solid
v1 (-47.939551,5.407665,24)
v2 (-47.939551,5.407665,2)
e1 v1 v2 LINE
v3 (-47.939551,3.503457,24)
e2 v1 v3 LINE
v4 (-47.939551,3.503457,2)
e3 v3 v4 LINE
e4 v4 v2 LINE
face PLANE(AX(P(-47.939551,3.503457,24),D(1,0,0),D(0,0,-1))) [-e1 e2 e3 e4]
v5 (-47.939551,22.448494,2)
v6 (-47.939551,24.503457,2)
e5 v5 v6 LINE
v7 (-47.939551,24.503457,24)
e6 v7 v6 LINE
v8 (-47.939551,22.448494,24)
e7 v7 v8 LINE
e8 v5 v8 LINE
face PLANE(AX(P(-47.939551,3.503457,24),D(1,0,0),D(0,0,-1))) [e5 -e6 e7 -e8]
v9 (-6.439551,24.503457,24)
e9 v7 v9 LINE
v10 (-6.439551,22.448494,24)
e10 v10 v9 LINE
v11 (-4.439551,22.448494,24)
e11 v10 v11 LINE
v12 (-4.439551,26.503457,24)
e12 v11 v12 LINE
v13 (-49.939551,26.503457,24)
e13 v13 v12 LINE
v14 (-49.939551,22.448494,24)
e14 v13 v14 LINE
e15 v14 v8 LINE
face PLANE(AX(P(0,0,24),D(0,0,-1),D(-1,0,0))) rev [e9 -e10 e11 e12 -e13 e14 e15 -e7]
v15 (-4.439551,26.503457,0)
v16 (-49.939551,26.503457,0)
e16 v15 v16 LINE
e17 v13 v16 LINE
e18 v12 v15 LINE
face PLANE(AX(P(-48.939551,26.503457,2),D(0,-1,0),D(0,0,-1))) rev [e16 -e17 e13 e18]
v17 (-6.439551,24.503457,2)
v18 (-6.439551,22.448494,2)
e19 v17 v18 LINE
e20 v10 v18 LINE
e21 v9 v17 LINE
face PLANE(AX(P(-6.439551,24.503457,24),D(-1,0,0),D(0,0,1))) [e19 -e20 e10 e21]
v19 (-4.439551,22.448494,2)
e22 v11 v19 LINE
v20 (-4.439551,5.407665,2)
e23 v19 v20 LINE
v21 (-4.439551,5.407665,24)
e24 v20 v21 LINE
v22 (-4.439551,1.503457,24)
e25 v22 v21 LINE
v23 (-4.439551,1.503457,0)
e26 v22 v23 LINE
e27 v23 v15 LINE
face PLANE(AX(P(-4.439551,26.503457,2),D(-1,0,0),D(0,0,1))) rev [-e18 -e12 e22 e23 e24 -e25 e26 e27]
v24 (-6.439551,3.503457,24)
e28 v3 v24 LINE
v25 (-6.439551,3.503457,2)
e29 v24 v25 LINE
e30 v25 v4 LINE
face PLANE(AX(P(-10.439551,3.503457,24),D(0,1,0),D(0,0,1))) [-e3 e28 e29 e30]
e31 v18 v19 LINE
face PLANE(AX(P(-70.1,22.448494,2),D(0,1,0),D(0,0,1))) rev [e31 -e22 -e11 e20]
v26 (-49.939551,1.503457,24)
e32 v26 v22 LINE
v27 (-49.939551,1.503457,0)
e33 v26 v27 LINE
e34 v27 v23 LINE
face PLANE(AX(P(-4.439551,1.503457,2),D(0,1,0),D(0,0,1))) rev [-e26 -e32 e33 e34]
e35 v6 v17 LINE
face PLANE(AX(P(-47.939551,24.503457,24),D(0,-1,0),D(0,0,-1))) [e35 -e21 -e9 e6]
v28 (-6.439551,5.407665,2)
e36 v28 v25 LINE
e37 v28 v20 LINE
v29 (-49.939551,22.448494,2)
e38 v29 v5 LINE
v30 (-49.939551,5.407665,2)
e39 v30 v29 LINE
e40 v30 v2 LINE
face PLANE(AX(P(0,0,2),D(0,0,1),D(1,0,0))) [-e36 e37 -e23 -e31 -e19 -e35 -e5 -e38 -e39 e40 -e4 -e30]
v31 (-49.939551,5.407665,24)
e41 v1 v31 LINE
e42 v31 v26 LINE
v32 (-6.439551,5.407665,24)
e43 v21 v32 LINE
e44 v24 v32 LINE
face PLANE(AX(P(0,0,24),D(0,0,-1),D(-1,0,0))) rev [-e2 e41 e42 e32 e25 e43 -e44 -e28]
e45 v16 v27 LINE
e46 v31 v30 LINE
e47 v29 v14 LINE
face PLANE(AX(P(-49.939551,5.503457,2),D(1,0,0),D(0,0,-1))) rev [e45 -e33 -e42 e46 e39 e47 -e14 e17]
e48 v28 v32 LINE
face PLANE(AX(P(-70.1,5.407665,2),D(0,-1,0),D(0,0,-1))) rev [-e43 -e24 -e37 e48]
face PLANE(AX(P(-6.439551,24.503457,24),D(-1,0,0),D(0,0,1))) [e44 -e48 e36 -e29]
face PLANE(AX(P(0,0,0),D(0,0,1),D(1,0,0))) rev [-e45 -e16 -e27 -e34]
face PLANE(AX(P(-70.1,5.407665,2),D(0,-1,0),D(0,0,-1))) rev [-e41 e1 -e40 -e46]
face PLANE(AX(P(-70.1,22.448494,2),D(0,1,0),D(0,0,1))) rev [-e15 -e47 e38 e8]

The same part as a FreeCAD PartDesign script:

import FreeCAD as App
import Part
import Sketcher
Q = App.Units.Quantity

doc = App.newDocument("Part")
body = doc.addObject("PartDesign::Body", "Body")

# Sketch on XY plane
sketch1 = body.newObject("Sketcher::SketchObject", "Sketch")
sketch1.AttachmentSupport = (doc.getObject("XY_Plane"), [""])
sketch1.MapMode = "FlatFace"
sketch1.addGeometry([
    Part.LineSegment(App.Vector(-4, 27, 0), App.Vector(-50, 27, 0)),
    Part.LineSegment(App.Vector(-50, 27, 0), App.Vector(-50, 2, 0)),
    Part.LineSegment(App.Vector(-50, 2, 0), App.Vector(-4, 2, 0)),
    Part.LineSegment(App.Vector(-4, 2, 0), App.Vector(-4, 27, 0)),
], False)
sketch1.addConstraint([
    Sketcher.Constraint("Coincident", 0, 2, 1, 1),
    Sketcher.Constraint("Coincident", 1, 2, 2, 1),
    Sketcher.Constraint("Coincident", 2, 2, 3, 1),
    Sketcher.Constraint("Coincident", 3, 2, 0, 1),
    Sketcher.Constraint("Horizontal", 0),
    Sketcher.Constraint("Vertical", 1),
    Sketcher.Constraint("Horizontal", 2),
    Sketcher.Constraint("Vertical", 3),
    Sketcher.Constraint("DistanceY", 1, 2, 1, 1, Q("25 mm")),
    Sketcher.Constraint("DistanceX", 0, 2, 0, 1, Q("45.5 mm")),
    Sketcher.Constraint("DistanceX", 0, 2, -1, 1, Q("49.939551 mm")),
    Sketcher.Constraint("DistanceY", -1, 1, 0, 2, Q("26.503457 mm")),
])
pad1 = body.newObject("PartDesign::Pad", "Pad")
pad1.Profile = sketch1
pad1.Length = 2

# Sketch on XY plane
sketch2 = body.newObject("Sketcher::SketchObject", "Sketch001")
sketch2.AttachmentSupport = (doc.getObject("XY_Plane"), [""])
sketch2.MapMode = "FlatFace"
sketch2.addGeometry([
    Part.LineSegment(App.Vector(-4, 27, 0), App.Vector(-50, 27, 0)),  # 0
    Part.LineSegment(App.Vector(-50, 27, 0), App.Vector(-50, 2, 0)),  # 1
    Part.LineSegment(App.Vector(-50, 2, 0), App.Vector(-4, 2, 0)),  # 2
    Part.LineSegment(App.Vector(-4, 2, 0), App.Vector(-4, 27, 0)),  # 3
    Part.LineSegment(App.Vector(-48, 4, 0), App.Vector(-48, 25, 0)),  # 4
    Part.LineSegment(App.Vector(-48, 25, 0), App.Vector(-6, 25, 0)),  # 5
    Part.LineSegment(App.Vector(-6, 25, 0), App.Vector(-6, 4, 0)),  # 6
    Part.LineSegment(App.Vector(-6, 4, 0), App.Vector(-48, 4, 0)),  # 7
], False)
sketch2.addConstraint([
    Sketcher.Constraint("Coincident", 0, 2, 1, 1),
    Sketcher.Constraint("Coincident", 1, 2, 2, 1),
    Sketcher.Constraint("Coincident", 2, 2, 3, 1),
    Sketcher.Constraint("Coincident", 3, 2, 0, 1),
    Sketcher.Constraint("Coincident", 4, 2, 5, 1),
    Sketcher.Constraint("Coincident", 5, 2, 6, 1),
    Sketcher.Constraint("Coincident", 6, 2, 7, 1),
    Sketcher.Constraint("Coincident", 7, 2, 4, 1),
    Sketcher.Constraint("Horizontal", 0),
    Sketcher.Constraint("Vertical", 1),
    Sketcher.Constraint("Horizontal", 2),
    Sketcher.Constraint("Vertical", 3),
    Sketcher.Constraint("Vertical", 4),
    Sketcher.Constraint("Horizontal", 5),
    Sketcher.Constraint("Vertical", 6),
    Sketcher.Constraint("Horizontal", 7),
    Sketcher.Constraint("DistanceY", 1, 2, 1, 1, Q("25 mm")),
    Sketcher.Constraint("DistanceY", 4, 1, 4, 2, Q("21 mm")),
    Sketcher.Constraint("DistanceX", 0, 2, 0, 1, Q("45.5 mm")),
    Sketcher.Constraint("DistanceX", 5, 1, 5, 2, Q("41.5 mm")),
    Sketcher.Constraint("DistanceX", 0, 2, 4, 2, Q("2 mm")),
    Sketcher.Constraint("DistanceY", 4, 2, 0, 2, Q("2 mm")),
    Sketcher.Constraint("DistanceX", 0, 2, -1, 1, Q("49.939551 mm")),
    Sketcher.Constraint("DistanceY", -1, 1, 0, 2, Q("26.503457 mm")),
])
pad2 = body.newObject("PartDesign::Pad", "Pad001")
pad2.Profile = sketch2
pad2.Length = 24

# Sketch on YZ plane
sketch3 = body.newObject("Sketcher::SketchObject", "Sketch002")
sketch3.AttachmentSupport = (doc.getObject("YZ_Plane"), [""])
sketch3.MapMode = "FlatFace"
sketch3.addGeometry([
    Part.LineSegment(App.Vector(22, 29, 0), App.Vector(5, 29, 0)),
    Part.LineSegment(App.Vector(5, 29, 0), App.Vector(5, 2, 0)),
    Part.LineSegment(App.Vector(5, 2, 0), App.Vector(22, 2, 0)),
    Part.LineSegment(App.Vector(22, 2, 0), App.Vector(22, 29, 0)),
], False)
sketch3.addConstraint([
    Sketcher.Constraint("Coincident", 0, 2, 1, 1),
    Sketcher.Constraint("Coincident", 1, 2, 2, 1),
    Sketcher.Constraint("Coincident", 2, 2, 3, 1),
    Sketcher.Constraint("Coincident", 3, 2, 0, 1),
    Sketcher.Constraint("Horizontal", 0),
    Sketcher.Constraint("Vertical", 1),
    Sketcher.Constraint("Horizontal", 2),
    Sketcher.Constraint("Vertical", 3),
    Sketcher.Constraint("DistanceY", -1, 1, 1, 2, Q("2 mm")),
    Sketcher.Constraint("DistanceX", 0, 2, 0, 1, Q("17.040829 mm")),
    Sketcher.Constraint("DistanceY", 1, 2, 1, 1, Q("26.838471 mm")),
    Sketcher.Constraint("DistanceX", -1, 1, 0, 2, Q("5.407665 mm")),
])
pocket1 = body.newObject("PartDesign::Pocket", "Pocket")
pocket1.Profile = sketch3
pocket1.Length = 70.1

# Sketch on XZ plane
sketch4 = body.newObject("Sketcher::SketchObject", "Sketch003")
sketch4.AttachmentSupport = (doc.getObject("XZ_Plane"), [""])
sketch4.MapMode = "FlatFace"
sketch4.AttachmentOffset = App.Placement(App.Vector(0, 0, -26.503457), App.Rotation())
sketch4.addGeometry([
    Part.LineSegment(App.Vector(-4, 21, 0), App.Vector(-50, 21, 0)),
    Part.LineSegment(App.Vector(-50, 21, 0), App.Vector(-50, 36, 0)),
    Part.LineSegment(App.Vector(-50, 36, 0), App.Vector(-4, 36, 0)),
    Part.LineSegment(App.Vector(-4, 36, 0), App.Vector(-4, 21, 0)),
], False)
sketch4.addConstraint([
    Sketcher.Constraint("Coincident", 0, 2, 1, 1),
    Sketcher.Constraint("Coincident", 1, 2, 2, 1),
    Sketcher.Constraint("Coincident", 2, 2, 3, 1),
    Sketcher.Constraint("Coincident", 3, 2, 0, 1),
    Sketcher.Constraint("Horizontal", 0),
    Sketcher.Constraint("Vertical", 1),
    Sketcher.Constraint("Horizontal", 2),
    Sketcher.Constraint("Vertical", 3),
    Sketcher.Constraint("DistanceX", 0, 2, 0, 1, Q("45.5 mm")),
    Sketcher.Constraint("DistanceY", -1, 1, 1, 2, Q("36.1 mm")),
    Sketcher.Constraint("DistanceY", 1, 1, 1, 2, Q("15.492807 mm")),
    Sketcher.Constraint("DistanceX", 0, 2, -1, 1, Q("49.939551 mm")),
])
pad3 = body.newObject("PartDesign::Pad", "Pad002")
pad3.Profile = sketch4
pad3.Length = 2

# Sketch on XY plane
sketch5 = body.newObject("Sketcher::SketchObject", "Sketch004")
sketch5.AttachmentSupport = (doc.getObject("XY_Plane"), [""])
sketch5.MapMode = "FlatFace"
sketch5.AttachmentOffset = App.Placement(App.Vector(0, 0, 36.1), App.Rotation())
sketch5.addGeometry([
    Part.LineSegment(App.Vector(-50, 25, 0), App.Vector(-4, 25, 0)),
    Part.LineSegment(App.Vector(-4, 25, 0), App.Vector(-4, 34, 0)),
    Part.LineSegment(App.Vector(-4, 34, 0), App.Vector(-50, 34, 0)),
    Part.LineSegment(App.Vector(-50, 34, 0), App.Vector(-50, 25, 0)),
], False)
sketch5.addConstraint([
    Sketcher.Constraint("Coincident", 0, 2, 1, 1),
    Sketcher.Constraint("Coincident", 1, 2, 2, 1),
    Sketcher.Constraint("Coincident", 2, 2, 3, 1),
    Sketcher.Constraint("Coincident", 3, 2, 0, 1),
    Sketcher.Constraint("Horizontal", 0),
    Sketcher.Constraint("Vertical", 1),
    Sketcher.Constraint("Horizontal", 2),
    Sketcher.Constraint("Vertical", 3),
    Sketcher.Constraint("DistanceY", 1, 1, 1, 2, Q("9 mm")),
    Sketcher.Constraint("DistanceX", 0, 1, 0, 2, Q("45.5 mm")),
    Sketcher.Constraint("DistanceX", 0, 2, -1, 1, Q("4.439551 mm")),
    Sketcher.Constraint("DistanceY", -1, 1, 0, 2, Q("24.503457 mm")),
])
pad4 = body.newObject("PartDesign::Pad", "Pad003")
pad4.Profile = sketch5
pad4.Length = 2
pad4.Reversed = True

# Sketch on XY plane
sketch6 = body.newObject("Sketcher::SketchObject", "Sketch005")
sketch6.AttachmentSupport = (doc.getObject("XY_Plane"), [""])
sketch6.MapMode = "FlatFace"
sketch6.AttachmentOffset = App.Placement(App.Vector(0, 0, 36.1), App.Rotation())
sketch6.addGeometry([
    Part.LineSegment(App.Vector(-49.9, 33.5, 0), App.Vector(-49.9, 31.5, 0)),
    Part.LineSegment(App.Vector(-49.9, 31.5, 0), App.Vector(-4.4, 31.5, 0)),
    Part.LineSegment(App.Vector(-4.4, 31.5, 0), App.Vector(-4.4, 33.5, 0)),
    Part.LineSegment(App.Vector(-4.4, 33.5, 0), App.Vector(-49.9, 33.5, 0)),
], False)
sketch6.addConstraint([
    Sketcher.Constraint("Coincident", 0, 2, 1, 1),
    Sketcher.Constraint("Coincident", 1, 2, 2, 1),
    Sketcher.Constraint("Coincident", 2, 2, 3, 1),
    Sketcher.Constraint("Coincident", 3, 2, 0, 1),
    Sketcher.Constraint("Vertical", 0),
    Sketcher.Constraint("Horizontal", 1),
    Sketcher.Constraint("Vertical", 2),
    Sketcher.Constraint("Horizontal", 3),
    Sketcher.Constraint("DistanceY", 0, 2, 0, 1, Q("2 mm")),
    Sketcher.Constraint("DistanceX", 1, 1, 1, 2, Q("45.5 mm")),
    Sketcher.Constraint("DistanceX", 0, 2, -1, 1, Q("49.939551 mm")),
    Sketcher.Constraint("DistanceY", -1, 1, 0, 2, Q("31.503457 mm")),
])
pad5 = body.newObject("PartDesign::Pad", "Pad004")
pad5.Profile = sketch6
pad5.Length = 8
pad5.Reversed = True

# Sketch on XY plane
sketch7 = body.newObject("Sketcher::SketchObject", "Sketch006")
sketch7.AttachmentSupport = (doc.getObject("XY_Plane"), [""])
sketch7.MapMode = "FlatFace"
sketch7.AttachmentOffset = App.Placement(App.Vector(0, 0, 36.1), App.Rotation())
sketch7.addGeometry([
    Part.LineSegment(App.Vector(-49.9, 29.5, 0), App.Vector(-49.9, 26.5, 0)),
    Part.LineSegment(App.Vector(-49.9, 26.5, 0), App.Vector(-4.4, 26.5, 0)),
    Part.LineSegment(App.Vector(-4.4, 26.5, 0), App.Vector(-4.4, 29.5, 0)),
    Part.LineSegment(App.Vector(-4.4, 29.5, 0), App.Vector(-49.9, 29.5, 0)),
], False)
sketch7.addConstraint([
    Sketcher.Constraint("Coincident", 0, 2, 1, 1),
    Sketcher.Constraint("Coincident", 1, 2, 2, 1),
    Sketcher.Constraint("Coincident", 2, 2, 3, 1),
    Sketcher.Constraint("Coincident", 3, 2, 0, 1),
    Sketcher.Constraint("Vertical", 0),
    Sketcher.Constraint("Horizontal", 1),
    Sketcher.Constraint("Vertical", 2),
    Sketcher.Constraint("Horizontal", 3),
    Sketcher.Constraint("DistanceY", 0, 2, 0, 1, Q("3 mm")),
    Sketcher.Constraint("DistanceX", 1, 1, 1, 2, Q("45.5 mm")),
    Sketcher.Constraint("DistanceX", 0, 2, -1, 1, Q("49.939551 mm")),
    Sketcher.Constraint("DistanceY", -1, 1, 0, 2, Q("26.503457 mm")),
])
pad6 = body.newObject("PartDesign::Pad", "Pad005")
pad6.Profile = sketch7
pad6.Length = 6
pad6.Reversed = True

# Sketch on XY plane
sketch8 = body.newObject("Sketcher::SketchObject", "Sketch007")
sketch8.AttachmentSupport = (doc.getObject("XY_Plane"), [""])
sketch8.MapMode = "FlatFace"
sketch8.AttachmentOffset = App.Placement(App.Vector(0, 0, 24), App.Rotation())
sketch8.addGeometry([
    Part.LineSegment(App.Vector(-64, 53, 0), App.Vector(-64, -6, 0)),
    Part.LineSegment(App.Vector(-64, -6, 0), App.Vector(13, -6, 0)),
    Part.LineSegment(App.Vector(13, -6, 0), App.Vector(13, 53, 0)),
    Part.LineSegment(App.Vector(13, 53, 0), App.Vector(-64, 53, 0)),
], False)
sketch8.addConstraint([
    Sketcher.Constraint("Coincident", 0, 2, 1, 1),
    Sketcher.Constraint("Coincident", 1, 2, 2, 1),
    Sketcher.Constraint("Coincident", 2, 2, 3, 1),
    Sketcher.Constraint("Coincident", 3, 2, 0, 1),
    Sketcher.Constraint("Vertical", 0),
    Sketcher.Constraint("Horizontal", 1),
    Sketcher.Constraint("Vertical", 2),
    Sketcher.Constraint("Horizontal", 3),
    Sketcher.Constraint("DistanceX", 1, 1, 1, 2, Q("76.96238 mm")),
    Sketcher.Constraint("DistanceY", 0, 2, 0, 1, Q("58.957858 mm")),
    Sketcher.Constraint("DistanceX", -1, 1, 1, 2, Q("13.093499 mm")),
    Sketcher.Constraint("DistanceY", -1, 1, 2, 2, Q("53.342621 mm")),
])
pocket2 = body.newObject("PartDesign::Pocket", "Pocket001")
pocket2.Profile = sketch8
pocket2.Length = 28
pocket2.Reversed = True

doc.recompute()
